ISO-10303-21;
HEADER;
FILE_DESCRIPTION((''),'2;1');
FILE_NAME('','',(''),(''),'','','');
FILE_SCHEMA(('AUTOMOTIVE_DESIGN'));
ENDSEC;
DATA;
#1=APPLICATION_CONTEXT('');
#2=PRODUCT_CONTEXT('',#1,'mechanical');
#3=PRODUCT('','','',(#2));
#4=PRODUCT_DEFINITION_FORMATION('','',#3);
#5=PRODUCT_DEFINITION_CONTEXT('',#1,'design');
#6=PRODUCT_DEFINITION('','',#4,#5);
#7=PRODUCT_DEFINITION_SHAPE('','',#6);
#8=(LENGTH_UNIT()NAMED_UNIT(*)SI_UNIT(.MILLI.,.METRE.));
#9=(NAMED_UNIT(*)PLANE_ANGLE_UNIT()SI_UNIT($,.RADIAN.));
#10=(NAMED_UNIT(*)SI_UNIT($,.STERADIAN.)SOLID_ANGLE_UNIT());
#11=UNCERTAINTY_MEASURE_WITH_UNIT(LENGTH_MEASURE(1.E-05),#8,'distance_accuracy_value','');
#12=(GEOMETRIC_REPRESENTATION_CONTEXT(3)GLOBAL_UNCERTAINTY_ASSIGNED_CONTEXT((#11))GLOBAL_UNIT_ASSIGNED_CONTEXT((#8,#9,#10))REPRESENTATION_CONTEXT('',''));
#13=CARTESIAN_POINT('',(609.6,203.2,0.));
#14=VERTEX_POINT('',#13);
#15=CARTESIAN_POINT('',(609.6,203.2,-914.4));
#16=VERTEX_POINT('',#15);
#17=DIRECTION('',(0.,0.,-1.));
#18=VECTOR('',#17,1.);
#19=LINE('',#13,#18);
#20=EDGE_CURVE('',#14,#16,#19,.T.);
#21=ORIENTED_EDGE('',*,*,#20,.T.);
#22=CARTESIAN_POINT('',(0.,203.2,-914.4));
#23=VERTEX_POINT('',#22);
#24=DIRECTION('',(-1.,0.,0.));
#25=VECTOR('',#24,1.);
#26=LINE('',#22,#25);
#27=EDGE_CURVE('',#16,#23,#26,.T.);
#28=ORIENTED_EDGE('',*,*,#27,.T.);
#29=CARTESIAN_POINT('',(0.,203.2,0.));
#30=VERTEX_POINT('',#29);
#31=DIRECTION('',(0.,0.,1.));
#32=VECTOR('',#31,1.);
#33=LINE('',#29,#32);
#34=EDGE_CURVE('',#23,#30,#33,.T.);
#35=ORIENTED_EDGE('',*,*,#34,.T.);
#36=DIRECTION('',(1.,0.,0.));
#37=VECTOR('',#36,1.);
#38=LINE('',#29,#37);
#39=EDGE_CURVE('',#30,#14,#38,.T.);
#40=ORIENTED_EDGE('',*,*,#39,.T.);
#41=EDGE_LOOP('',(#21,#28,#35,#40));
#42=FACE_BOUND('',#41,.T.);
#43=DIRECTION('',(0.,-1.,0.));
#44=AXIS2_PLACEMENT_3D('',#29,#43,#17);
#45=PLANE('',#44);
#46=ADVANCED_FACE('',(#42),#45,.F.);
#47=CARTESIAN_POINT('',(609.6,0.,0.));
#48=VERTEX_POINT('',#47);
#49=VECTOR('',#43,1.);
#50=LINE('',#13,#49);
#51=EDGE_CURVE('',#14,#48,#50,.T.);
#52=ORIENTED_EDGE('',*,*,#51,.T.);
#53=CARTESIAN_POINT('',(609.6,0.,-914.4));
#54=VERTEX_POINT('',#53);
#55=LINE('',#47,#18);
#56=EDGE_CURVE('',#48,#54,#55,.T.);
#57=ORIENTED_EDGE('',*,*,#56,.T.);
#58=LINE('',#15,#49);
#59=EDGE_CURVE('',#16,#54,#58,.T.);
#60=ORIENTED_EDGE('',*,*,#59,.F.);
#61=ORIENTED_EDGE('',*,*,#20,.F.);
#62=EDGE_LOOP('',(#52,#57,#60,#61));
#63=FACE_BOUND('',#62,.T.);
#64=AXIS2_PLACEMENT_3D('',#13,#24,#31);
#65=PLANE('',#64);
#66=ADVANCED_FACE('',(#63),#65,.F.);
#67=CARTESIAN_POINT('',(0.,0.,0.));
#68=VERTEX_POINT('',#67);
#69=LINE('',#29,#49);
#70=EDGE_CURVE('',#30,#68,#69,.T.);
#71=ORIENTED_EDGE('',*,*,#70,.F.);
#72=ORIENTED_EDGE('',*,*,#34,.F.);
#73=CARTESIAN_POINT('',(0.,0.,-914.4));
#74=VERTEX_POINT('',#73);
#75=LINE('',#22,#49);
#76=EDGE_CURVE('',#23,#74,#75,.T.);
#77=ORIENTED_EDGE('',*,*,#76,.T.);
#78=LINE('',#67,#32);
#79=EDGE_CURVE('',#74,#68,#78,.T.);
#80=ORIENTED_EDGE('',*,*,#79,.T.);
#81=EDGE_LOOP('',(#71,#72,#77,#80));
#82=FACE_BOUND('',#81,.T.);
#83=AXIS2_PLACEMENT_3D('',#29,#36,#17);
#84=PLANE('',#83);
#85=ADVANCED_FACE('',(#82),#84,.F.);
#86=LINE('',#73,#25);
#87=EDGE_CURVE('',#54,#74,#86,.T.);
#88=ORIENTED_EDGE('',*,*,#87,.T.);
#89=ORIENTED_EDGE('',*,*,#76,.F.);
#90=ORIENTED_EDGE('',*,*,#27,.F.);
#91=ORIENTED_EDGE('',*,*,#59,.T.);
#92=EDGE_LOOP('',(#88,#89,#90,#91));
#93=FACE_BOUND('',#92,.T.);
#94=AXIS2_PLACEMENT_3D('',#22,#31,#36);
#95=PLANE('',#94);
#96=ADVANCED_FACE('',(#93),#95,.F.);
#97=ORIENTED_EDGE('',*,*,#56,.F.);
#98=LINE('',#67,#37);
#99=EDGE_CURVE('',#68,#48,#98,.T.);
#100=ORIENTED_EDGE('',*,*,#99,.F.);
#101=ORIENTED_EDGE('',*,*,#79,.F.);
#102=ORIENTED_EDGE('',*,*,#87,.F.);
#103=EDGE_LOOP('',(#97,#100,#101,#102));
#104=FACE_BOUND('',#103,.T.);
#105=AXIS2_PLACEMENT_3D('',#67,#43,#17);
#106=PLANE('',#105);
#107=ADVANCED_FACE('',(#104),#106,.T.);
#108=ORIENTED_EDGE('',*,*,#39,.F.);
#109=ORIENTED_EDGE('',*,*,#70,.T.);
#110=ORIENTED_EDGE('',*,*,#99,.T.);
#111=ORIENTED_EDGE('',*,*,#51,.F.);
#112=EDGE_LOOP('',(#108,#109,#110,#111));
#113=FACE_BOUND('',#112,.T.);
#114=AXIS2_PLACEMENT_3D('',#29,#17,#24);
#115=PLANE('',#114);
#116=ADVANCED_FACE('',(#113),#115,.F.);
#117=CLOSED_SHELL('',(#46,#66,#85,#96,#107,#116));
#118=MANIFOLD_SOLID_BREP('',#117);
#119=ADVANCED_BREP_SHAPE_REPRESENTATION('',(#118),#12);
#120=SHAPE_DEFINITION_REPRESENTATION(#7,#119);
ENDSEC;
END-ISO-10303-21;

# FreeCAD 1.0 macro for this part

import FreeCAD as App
import Part
import Sketcher
from FreeCAD import Vector
Q = App.Units.Quantity

doc = App.newDocument("Part")
body = doc.addObject("PartDesign::Body", "Body")

# Sketch on XZ plane
sketch1 = body.newObject("Sketcher::SketchObject", "Sketch")
sketch1.AttachmentSupport = (doc.getObject("XZ_Plane"), [""])
sketch1.MapMode = "FlatFace"
sketch1.addGeometry([
    Part.LineSegment(Vector(0, -914.4, 0), Vector(0, 0, 0)),
    Part.LineSegment(Vector(0, 0, 0), Vector(609.6, 0, 0)),
    Part.LineSegment(Vector(609.6, 0, 0), Vector(609.6, -914.4, 0)),
    Part.LineSegment(Vector(609.6, -914.4, 0), Vector(0, -914.4, 0)),
], False)
sketch1.addConstraint([
    Sketcher.Constraint("Coincident", 0, 2, 1, 1),
    Sketcher.Constraint("Coincident", 1, 2, 2, 1),
    Sketcher.Constraint("Coincident", 2, 2, 3, 1),
    Sketcher.Constraint("Coincident", 3, 2, 0, 1),
    Sketcher.Constraint("Vertical", 0),
    Sketcher.Constraint("Horizontal", 1),
    Sketcher.Constraint("Vertical", 2),
    Sketcher.Constraint("Horizontal", 3),
    Sketcher.Constraint("Coincident", 0, 2, -1, 1),
    Sketcher.Constraint("DistanceX", 1, 1, 1, 2, Q("24 in")),
    Sketcher.Constraint("DistanceY", 0, 1, 0, 2, Q("36 in")),
])
pad1 = body.newObject("PartDesign::Pad", "Pad")
pad1.Profile = sketch1
pad1.Length = Q("8 in")
pad1.Reversed = True

doc.recompute()
